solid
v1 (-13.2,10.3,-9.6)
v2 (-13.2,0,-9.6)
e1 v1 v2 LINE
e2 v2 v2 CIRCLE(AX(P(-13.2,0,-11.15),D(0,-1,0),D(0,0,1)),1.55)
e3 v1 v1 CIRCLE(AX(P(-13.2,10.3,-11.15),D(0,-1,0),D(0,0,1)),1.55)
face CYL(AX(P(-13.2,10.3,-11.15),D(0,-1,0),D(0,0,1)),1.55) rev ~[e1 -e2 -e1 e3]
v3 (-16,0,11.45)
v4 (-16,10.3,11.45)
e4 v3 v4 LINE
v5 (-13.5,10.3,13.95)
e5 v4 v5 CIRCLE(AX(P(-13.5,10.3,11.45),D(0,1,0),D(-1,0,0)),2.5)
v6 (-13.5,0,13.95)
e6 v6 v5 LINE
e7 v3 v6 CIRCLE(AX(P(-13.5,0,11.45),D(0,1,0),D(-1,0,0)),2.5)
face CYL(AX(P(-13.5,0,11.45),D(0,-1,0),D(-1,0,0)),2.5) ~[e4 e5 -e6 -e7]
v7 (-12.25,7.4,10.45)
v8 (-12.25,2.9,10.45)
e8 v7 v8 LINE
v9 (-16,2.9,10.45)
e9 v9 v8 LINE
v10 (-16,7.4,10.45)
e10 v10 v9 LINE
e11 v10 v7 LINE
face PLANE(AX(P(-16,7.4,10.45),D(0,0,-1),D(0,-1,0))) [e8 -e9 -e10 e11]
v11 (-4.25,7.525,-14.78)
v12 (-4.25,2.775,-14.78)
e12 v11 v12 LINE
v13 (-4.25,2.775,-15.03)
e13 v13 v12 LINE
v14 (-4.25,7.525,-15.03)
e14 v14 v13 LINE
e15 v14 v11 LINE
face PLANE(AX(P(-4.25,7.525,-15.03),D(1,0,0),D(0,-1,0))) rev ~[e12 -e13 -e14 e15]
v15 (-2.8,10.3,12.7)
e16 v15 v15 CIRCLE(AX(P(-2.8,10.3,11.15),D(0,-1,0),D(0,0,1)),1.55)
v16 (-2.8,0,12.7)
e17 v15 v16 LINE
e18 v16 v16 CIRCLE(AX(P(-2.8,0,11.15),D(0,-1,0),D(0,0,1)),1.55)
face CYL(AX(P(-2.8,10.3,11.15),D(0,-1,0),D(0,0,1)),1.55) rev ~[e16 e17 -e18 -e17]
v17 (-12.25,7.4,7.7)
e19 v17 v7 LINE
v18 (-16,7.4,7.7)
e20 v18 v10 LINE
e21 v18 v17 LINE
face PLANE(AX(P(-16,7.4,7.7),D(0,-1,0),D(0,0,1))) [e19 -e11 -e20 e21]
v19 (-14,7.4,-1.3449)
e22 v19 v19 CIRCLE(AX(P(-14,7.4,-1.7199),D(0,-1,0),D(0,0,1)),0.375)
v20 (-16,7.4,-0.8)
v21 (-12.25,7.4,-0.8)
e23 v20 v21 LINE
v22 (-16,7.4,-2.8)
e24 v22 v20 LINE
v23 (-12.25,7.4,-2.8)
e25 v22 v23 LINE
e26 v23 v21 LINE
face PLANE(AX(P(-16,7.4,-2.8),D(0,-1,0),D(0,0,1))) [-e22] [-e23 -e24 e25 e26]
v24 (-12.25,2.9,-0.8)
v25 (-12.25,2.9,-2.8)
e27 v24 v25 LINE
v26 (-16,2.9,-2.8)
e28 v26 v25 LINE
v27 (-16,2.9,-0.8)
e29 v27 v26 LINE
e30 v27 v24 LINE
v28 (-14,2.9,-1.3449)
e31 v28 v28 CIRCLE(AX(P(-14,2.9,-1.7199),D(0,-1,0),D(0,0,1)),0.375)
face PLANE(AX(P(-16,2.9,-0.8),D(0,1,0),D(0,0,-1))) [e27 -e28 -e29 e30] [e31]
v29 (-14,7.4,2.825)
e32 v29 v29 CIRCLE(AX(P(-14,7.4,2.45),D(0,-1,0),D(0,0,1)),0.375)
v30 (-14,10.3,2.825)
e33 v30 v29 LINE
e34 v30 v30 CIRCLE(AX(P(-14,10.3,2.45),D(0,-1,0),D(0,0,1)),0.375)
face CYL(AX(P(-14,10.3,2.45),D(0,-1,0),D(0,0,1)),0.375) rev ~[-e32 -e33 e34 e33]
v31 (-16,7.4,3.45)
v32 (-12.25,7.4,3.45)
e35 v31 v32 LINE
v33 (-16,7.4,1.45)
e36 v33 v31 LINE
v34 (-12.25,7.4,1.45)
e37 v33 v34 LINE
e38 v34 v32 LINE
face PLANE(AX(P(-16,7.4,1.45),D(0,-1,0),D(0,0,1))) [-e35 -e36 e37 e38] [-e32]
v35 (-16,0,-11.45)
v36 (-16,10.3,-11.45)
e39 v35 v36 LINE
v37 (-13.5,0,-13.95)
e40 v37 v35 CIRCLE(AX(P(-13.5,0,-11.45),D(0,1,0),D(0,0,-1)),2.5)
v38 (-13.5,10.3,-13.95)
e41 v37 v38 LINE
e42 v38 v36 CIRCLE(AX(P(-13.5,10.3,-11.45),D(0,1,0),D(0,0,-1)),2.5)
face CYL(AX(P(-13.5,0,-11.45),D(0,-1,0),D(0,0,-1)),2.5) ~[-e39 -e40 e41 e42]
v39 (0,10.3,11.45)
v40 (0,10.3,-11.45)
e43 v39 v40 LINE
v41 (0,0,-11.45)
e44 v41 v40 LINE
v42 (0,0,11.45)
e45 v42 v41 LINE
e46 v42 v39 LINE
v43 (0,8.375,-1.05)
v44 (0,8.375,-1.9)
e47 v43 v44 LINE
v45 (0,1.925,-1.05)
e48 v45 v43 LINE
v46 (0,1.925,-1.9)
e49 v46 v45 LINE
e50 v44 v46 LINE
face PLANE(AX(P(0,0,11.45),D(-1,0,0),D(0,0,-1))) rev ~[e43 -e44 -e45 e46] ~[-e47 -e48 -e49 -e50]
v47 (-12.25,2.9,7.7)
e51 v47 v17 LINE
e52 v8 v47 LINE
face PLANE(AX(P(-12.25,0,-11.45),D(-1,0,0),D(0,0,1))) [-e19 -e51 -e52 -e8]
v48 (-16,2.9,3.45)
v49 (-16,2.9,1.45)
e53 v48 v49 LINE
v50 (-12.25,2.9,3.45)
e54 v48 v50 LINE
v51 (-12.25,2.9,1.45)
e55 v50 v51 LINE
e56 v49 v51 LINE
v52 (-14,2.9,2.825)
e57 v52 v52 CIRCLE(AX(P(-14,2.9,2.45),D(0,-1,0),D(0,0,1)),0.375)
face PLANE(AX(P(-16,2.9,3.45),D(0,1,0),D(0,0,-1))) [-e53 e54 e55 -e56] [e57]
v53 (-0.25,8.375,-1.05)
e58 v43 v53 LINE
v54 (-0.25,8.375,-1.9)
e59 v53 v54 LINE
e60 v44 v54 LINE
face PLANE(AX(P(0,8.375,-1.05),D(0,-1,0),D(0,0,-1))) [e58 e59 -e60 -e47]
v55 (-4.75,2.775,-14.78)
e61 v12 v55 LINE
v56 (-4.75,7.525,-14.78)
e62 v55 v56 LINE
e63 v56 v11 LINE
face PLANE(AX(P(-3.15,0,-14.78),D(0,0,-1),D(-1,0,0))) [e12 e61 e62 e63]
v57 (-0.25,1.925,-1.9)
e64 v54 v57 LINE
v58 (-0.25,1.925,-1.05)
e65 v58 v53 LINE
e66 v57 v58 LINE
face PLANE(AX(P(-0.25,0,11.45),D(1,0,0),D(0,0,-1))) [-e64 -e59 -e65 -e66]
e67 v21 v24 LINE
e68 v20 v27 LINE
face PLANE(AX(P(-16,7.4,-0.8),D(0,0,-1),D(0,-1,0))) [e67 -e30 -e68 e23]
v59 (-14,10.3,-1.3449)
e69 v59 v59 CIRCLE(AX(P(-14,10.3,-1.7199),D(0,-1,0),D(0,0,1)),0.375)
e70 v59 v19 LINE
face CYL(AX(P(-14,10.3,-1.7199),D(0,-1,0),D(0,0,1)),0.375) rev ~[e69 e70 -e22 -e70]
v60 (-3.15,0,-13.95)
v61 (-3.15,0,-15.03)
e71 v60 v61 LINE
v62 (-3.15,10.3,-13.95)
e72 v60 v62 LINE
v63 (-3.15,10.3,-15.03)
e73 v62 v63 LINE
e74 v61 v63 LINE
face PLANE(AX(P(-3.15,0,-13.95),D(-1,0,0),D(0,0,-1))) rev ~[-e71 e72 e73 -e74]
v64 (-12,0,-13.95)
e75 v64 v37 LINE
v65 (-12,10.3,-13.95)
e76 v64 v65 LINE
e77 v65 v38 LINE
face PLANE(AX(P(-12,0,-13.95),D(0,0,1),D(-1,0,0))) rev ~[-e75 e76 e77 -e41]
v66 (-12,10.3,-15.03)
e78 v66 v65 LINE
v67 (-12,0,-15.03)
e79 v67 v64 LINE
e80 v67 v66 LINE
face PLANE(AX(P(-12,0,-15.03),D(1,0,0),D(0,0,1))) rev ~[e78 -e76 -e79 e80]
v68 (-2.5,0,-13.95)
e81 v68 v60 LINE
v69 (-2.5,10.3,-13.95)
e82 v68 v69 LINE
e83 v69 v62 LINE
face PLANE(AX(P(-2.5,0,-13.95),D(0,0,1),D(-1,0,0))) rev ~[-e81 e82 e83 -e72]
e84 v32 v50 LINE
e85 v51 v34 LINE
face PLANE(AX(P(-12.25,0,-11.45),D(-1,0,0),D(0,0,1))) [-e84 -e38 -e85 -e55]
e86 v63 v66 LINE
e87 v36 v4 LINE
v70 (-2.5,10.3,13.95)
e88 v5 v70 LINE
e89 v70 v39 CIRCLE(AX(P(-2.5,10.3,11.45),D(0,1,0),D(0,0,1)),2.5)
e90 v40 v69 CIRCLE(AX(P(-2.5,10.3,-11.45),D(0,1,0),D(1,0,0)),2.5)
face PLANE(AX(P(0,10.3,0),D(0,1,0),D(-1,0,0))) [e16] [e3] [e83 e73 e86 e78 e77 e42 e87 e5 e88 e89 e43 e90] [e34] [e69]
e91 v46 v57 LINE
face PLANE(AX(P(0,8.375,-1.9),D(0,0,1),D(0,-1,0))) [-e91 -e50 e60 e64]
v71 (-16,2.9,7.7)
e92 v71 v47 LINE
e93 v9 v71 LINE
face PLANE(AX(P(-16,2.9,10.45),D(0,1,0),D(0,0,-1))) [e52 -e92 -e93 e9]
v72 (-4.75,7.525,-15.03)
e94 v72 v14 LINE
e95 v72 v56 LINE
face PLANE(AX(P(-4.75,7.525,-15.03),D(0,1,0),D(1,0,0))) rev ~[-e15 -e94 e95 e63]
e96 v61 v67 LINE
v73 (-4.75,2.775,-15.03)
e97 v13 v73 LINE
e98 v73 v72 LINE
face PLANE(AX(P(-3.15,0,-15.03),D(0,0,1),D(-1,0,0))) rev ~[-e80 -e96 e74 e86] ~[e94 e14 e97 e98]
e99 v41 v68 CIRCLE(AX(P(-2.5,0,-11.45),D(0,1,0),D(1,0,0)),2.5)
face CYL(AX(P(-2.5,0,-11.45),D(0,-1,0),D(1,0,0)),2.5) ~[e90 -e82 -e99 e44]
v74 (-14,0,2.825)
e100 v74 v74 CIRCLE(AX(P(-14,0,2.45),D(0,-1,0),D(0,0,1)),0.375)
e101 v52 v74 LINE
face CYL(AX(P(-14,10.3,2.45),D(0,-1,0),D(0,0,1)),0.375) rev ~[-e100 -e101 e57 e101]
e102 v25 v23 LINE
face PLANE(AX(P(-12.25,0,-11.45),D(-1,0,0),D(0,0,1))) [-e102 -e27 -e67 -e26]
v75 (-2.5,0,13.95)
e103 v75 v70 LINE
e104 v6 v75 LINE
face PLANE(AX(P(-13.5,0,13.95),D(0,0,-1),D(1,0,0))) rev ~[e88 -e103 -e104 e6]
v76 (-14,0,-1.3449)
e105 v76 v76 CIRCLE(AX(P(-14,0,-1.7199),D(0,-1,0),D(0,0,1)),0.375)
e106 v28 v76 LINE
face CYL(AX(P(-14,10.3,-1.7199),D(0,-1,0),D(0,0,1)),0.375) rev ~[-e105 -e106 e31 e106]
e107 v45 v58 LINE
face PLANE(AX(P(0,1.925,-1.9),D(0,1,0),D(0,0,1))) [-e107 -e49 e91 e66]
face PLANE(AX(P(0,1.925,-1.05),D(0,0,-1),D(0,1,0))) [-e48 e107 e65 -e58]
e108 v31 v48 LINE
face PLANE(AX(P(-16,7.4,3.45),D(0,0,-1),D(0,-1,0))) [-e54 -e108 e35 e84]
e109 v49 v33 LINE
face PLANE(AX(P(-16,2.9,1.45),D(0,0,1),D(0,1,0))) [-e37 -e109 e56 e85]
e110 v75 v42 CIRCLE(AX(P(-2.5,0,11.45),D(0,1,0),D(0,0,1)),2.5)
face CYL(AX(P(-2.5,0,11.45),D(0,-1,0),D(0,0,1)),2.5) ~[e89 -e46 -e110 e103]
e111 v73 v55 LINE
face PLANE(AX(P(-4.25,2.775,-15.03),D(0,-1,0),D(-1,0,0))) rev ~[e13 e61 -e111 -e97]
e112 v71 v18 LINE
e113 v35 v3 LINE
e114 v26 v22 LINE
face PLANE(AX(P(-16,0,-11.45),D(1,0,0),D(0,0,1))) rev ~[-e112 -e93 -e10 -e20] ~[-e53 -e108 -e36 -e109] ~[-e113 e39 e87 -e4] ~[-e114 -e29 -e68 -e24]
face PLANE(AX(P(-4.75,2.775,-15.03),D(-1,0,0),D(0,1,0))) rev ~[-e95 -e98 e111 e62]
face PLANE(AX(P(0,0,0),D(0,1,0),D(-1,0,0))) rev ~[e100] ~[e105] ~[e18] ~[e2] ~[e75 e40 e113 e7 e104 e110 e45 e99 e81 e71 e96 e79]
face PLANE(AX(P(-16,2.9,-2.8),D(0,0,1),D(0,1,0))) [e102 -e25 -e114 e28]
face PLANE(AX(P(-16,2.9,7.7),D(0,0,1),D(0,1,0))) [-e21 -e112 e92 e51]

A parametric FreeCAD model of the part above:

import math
import FreeCAD as App
import Part
import Sketcher
from FreeCAD import Vector
Q = App.Units.Quantity


def add_polygon(sketch, points):
    """Adds a closed chain of lines whose ends are joined by coincident constraints."""
    first, n = sketch.GeometryCount, len(points)
    for a, b in zip(points, points[1:] + points[:1]):
        sketch.addGeometry(Part.LineSegment(App.Vector(*a, 0), App.Vector(*b, 0)), False)
    for i in range(n):
        sketch.addConstraint(Sketcher.Constraint("Coincident", first + i, 2, first + (i + 1) % n, 1))

doc = App.newDocument("Part")
body = doc.addObject("PartDesign::Body", "Body")

# Sketch on XZ plane
sketch1 = body.newObject("Sketcher::SketchObject", "Sketch")
sketch1.AttachmentSupport = (doc.getObject("XZ_Plane"), [""])
sketch1.MapMode = "FlatFace"
sketch1.addGeometry(Part.ArcOfCircle(Part.Circle(Vector(-13.5, 11.4, 0), Vector(0, 0, 1), 2.5), math.radians(90), math.radians(180)), False)
sketch1.addGeometry(Part.LineSegment(Vector(-13.5, 13.9, 0), Vector(-2.5, 13.9, 0)), False)
sketch1.addGeometry(Part.ArcOfCircle(Part.Circle(Vector(-2.5, 11.4, 0), Vector(0, 0, 1), 2.5), math.radians(0), math.radians(90)), False)
sketch1.addGeometry(Part.LineSegment(Vector(0, 11.4, 0), Vector(0, -11.4, 0)), False)
sketch1.addGeometry(Part.ArcOfCircle(Part.Circle(Vector(-2.5, -11.4, 0), Vector(0, 0, 1), 2.5), math.radians(-90), math.radians(0)), False)
sketch1.addGeometry(Part.LineSegment(Vector(-2.5, -13.9, 0), Vector(-3.1, -13.9, 0)), False)
sketch1.addGeometry(Part.LineSegment(Vector(-3.1, -13.9, 0), Vector(-3.1, -15, 0)), False)
sketch1.addGeometry(Part.LineSegment(Vector(-3.1, -15, 0), Vector(-12, -15, 0)), False)
sketch1.addGeometry(Part.LineSegment(Vector(-12, -15, 0), Vector(-12, -13.9, 0)), False)
sketch1.addGeometry(Part.LineSegment(Vector(-12, -13.9, 0), Vector(-13.5, -13.9, 0)), False)
sketch1.addGeometry(Part.ArcOfCircle(Part.Circle(Vector(-13.5, -11.4, 0), Vector(0, 0, 1), 2.5), math.radians(180), math.radians(270)), False)
sketch1.addGeometry(Part.LineSegment(Vector(-16, -11.4, 0), Vector(-16, 11.4, 0)), False)
sketch1.addConstraint(Sketcher.Constraint("Tangent", 0, 1, 1, 1))
sketch1.addConstraint(Sketcher.Constraint("Tangent", 1, 2, 2, 2))
sketch1.addConstraint(Sketcher.Constraint("Tangent", 2, 1, 3, 1))
sketch1.addConstraint(Sketcher.Constraint("Tangent", 3, 2, 4, 2))
sketch1.addConstraint(Sketcher.Constraint("Tangent", 4, 1, 5, 1))
sketch1.addConstraint(Sketcher.Constraint("Coincident", 5, 2, 6, 1))
sketch1.addConstraint(Sketcher.Constraint("Coincident", 6, 2, 7, 1))
sketch1.addConstraint(Sketcher.Constraint("Coincident", 7, 2, 8, 1))
sketch1.addConstraint(Sketcher.Constraint("Coincident", 8, 2, 9, 1))
sketch1.addConstraint(Sketcher.Constraint("Tangent", 9, 2, 10, 2))
sketch1.addConstraint(Sketcher.Constraint("Tangent", 10, 1, 11, 1))
sketch1.addConstraint(Sketcher.Constraint("Tangent", 11, 2, 0, 2))
sketch1.addConstraint(Sketcher.Constraint("Horizontal", 1))
sketch1.addConstraint(Sketcher.Constraint("Vertical", 3))
sketch1.addConstraint(Sketcher.Constraint("Horizontal", 5))
sketch1.addConstraint(Sketcher.Constraint("Vertical", 6))
sketch1.addConstraint(Sketcher.Constraint("Horizontal", 7))
sketch1.addConstraint(Sketcher.Constraint("Vertical", 8))
sketch1.addConstraint(Sketcher.Constraint("Horizontal", 9))
sketch1.addConstraint(Sketcher.Constraint("Vertical", 11))
sketch1.addConstraint(Sketcher.Constraint("Equal", 0, 2))
sketch1.addConstraint(Sketcher.Constraint("Equal", 2, 4))
sketch1.addConstraint(Sketcher.Constraint("Equal", 4, 10))
sketch1.addConstraint(Sketcher.Constraint("Symmetric", 2, 1, 3, 2, -1, 1))
sketch1.addConstraint(Sketcher.Constraint("Horizontal", 4, 3, 10, 3))
sketch1.addConstraint(Sketcher.Constraint("Radius", 0, Q("2.5 mm")))
sketch1.addConstraint(Sketcher.Constraint("DistanceX", 10, 1, -1, 1, Q("16 mm")))
sketch1.addConstraint(Sketcher.Constraint("DistanceX", 10, 1, 8, 2, Q("4 mm")))
sketch1.addConstraint(Sketcher.Constraint("DistanceX", 7, 2, 7, 1, Q("8.85 mm")))
sketch1.addConstraint(Sketcher.Constraint("DistanceY", 6, 2, 6, 1, Q("1.08 mm")))
sketch1.addConstraint(Sketcher.Constraint("DistanceY", 3, 2, 3, 1, Q("22.9 mm")))
pad1 = body.newObject("PartDesign::Pad", "Pad")
pad1.Profile = sketch1
pad1.Length = 10.3
pad1.Reversed = True

# Sketch on XZ plane
sketch2 = body.newObject("Sketcher::SketchObject", "Sketch001")
sketch2.AttachmentSupport = (doc.getObject("XZ_Plane"), [""])
sketch2.MapMode = "FlatFace"
sketch2.AttachmentOffset = App.Placement(Vector(0, 0, -10.3), App.Rotation())
sketch2.addGeometry(Part.Circle(Vector(-13.2, -11.2, 0), Vector(0, 0, 1), 1.6), False)
sketch2.addGeometry(Part.Circle(Vector(-2.8, 11.2, 0), Vector(0, 0, 1), 1.6), False)
sketch2.addConstraint(Sketcher.Constraint("Equal", 0, 1))
sketch2.addConstraint(Sketcher.Constraint("Diameter", 0, Q("3.1 mm")))
sketch2.addConstraint(Sketcher.Constraint("DistanceX", 0, 3, -1, 1, Q("13.2 mm")))
sketch2.addConstraint(Sketcher.Constraint("DistanceX", 1, 3, -1, 1, Q("2.8 mm")))
sketch2.addConstraint(Sketcher.Constraint("DistanceY", 0, 3, 1, 3, Q("22.3 mm")))
sketch2.addConstraint(Sketcher.Constraint("DistanceY", 0, 3, -1, 1, Q("11.15 mm")))
doc.recompute()
hole = body.newObject("PartDesign::Hole", "Hole")
hole.Profile = sketch2
hole.ThreadType = "None"
hole.Diameter = 3.1
hole.DepthType = "ThroughAll"
hole.Reversed = True

# Sketch on YZ plane
sketch3 = body.newObject("Sketcher::SketchObject", "Sketch002")
sketch3.AttachmentSupport = (doc.getObject("YZ_Plane"), [""])
sketch3.MapMode = "FlatFace"
sketch3.AttachmentOffset = App.Placement(Vector(0, 0, -16), App.Rotation())
add_polygon(sketch3, [(2.9, -2.8), (2.9, -0.8), (7.4, -0.8), (7.4, -2.8)])  # lines 0-3
add_polygon(sketch3, [(2.9, 1.4), (2.9, 3.5), (7.4, 3.5), (7.4, 1.4)])  # lines 4-7
add_polygon(sketch3, [(2.9, 7.7), (2.9, 10.4), (7.4, 10.4), (7.4, 7.7)])  # lines 8-11
sketch3.addConstraint(Sketcher.Constraint("Vertical", 0))
sketch3.addConstraint(Sketcher.Constraint("Horizontal", 1))
sketch3.addConstraint(Sketcher.Constraint("Vertical", 2))
sketch3.addConstraint(Sketcher.Constraint("Horizontal", 3))
sketch3.addConstraint(Sketcher.Constraint("Vertical", 4))
sketch3.addConstraint(Sketcher.Constraint("Horizontal", 5))
sketch3.addConstraint(Sketcher.Constraint("Vertical", 6))
sketch3.addConstraint(Sketcher.Constraint("Horizontal", 7))
sketch3.addConstraint(Sketcher.Constraint("Vertical", 8))
sketch3.addConstraint(Sketcher.Constraint("Horizontal", 9))
sketch3.addConstraint(Sketcher.Constraint("Vertical", 10))
sketch3.addConstraint(Sketcher.Constraint("Horizontal", 11))
sketch3.addConstraint(Sketcher.Constraint("Vertical", 3, 2, 4, 2))
sketch3.addConstraint(Sketcher.Constraint("Vertical", 2, 2, 5, 2))
sketch3.addConstraint(Sketcher.Constraint("Vertical", 7, 2, 8, 2))
sketch3.addConstraint(Sketcher.Constraint("Vertical", 6, 2, 9, 2))
sketch3.addConstraint(Sketcher.Constraint("Equal", 2, 4))
sketch3.addConstraint(Sketcher.Constraint("DistanceY", 0, 1, 0, 2, Q("2 mm")))
sketch3.addConstraint(Sketcher.Constraint("DistanceX", 1, 1, 1, 2, Q("4.5 mm")))
sketch3.addConstraint(Sketcher.Constraint("DistanceY", 8, 1, 8, 2, Q("2.75 mm")))
sketch3.addConstraint(Sketcher.Constraint("DistanceY", 0, 2, 4, 2, Q("4.25 mm")))
sketch3.addConstraint(Sketcher.Constraint("DistanceY", 5, 2, 10, 2, Q("4.25 mm")))
sketch3.addConstraint(Sketcher.Constraint("DistanceX", -1, 1, 0, 2, Q("2.9 mm")))
sketch3.addConstraint(Sketcher.Constraint("DistanceY", 0, 2, -1, 1, Q("0.8 mm")))
pocket1 = body.newObject("PartDesign::Pocket", "Pocket")
pocket1.Profile = sketch3
pocket1.Length = 3.75
pocket1.Reversed = True

# Sketch on XZ plane
sketch4 = body.newObject("Sketcher::SketchObject", "Sketch003")
sketch4.AttachmentSupport = (doc.getObject("XZ_Plane"), [""])
sketch4.MapMode = "FlatFace"
sketch4.AttachmentOffset = App.Placement(Vector(0, 0, -10.3), App.Rotation())
sketch4.addGeometry(Part.Circle(Vector(-14, 2.45, 0), Vector(0, 0, 1), 0.38), False)
sketch4.addGeometry(Part.Circle(Vector(-14, -1.72, 0), Vector(0, 0, 1), 0.38), False)
sketch4.addConstraint(Sketcher.Constraint("Equal", 0, 1))
sketch4.addConstraint(Sketcher.Constraint("Vertical", 0, 3, 1, 3))
sketch4.addConstraint(Sketcher.Constraint("Diameter", 0, Q("0.75 mm")))
sketch4.addConstraint(Sketcher.Constraint("DistanceX", 0, 3, -1, 1, Q("14 mm")))
sketch4.addConstraint(Sketcher.Constraint("DistanceY", -1, 1, 0, 3, Q("2.45 mm")))
sketch4.addConstraint(Sketcher.Constraint("DistanceY", 1, 3, -1, 1, Q("1.72 mm")))
doc.recompute()
hole2 = body.newObject("PartDesign::Hole", "Hole001")
hole2.Profile = sketch4
hole2.ThreadType = "None"
hole2.Diameter = 0.75
hole2.DepthType = "ThroughAll"
hole2.Reversed = True

# Sketch on XY plane
sketch5 = body.newObject("Sketcher::SketchObject", "Sketch004")
sketch5.AttachmentSupport = (doc.getObject("XY_Plane"), [""])
sketch5.MapMode = "FlatFace"
sketch5.AttachmentOffset = App.Placement(Vector(0, 0, -15.03), App.Rotation())
add_polygon(sketch5, [(-4.8, 2.8), (-4.8, 7.5), (-4.2, 7.5), (-4.2, 2.8)])  # lines 0-3
sketch5.addConstraint(Sketcher.Constraint("Vertical", 0))
sketch5.addConstraint(Sketcher.Constraint("Horizontal", 1))
sketch5.addConstraint(Sketcher.Constraint("Vertical", 2))
sketch5.addConstraint(Sketcher.Constraint("Horizontal", 3))
sketch5.addConstraint(Sketcher.Constraint("DistanceX", 1, 1, 1, 2, Q("0.5 mm")))
sketch5.addConstraint(Sketcher.Constraint("DistanceY", 0, 1, 0, 2, Q("4.75 mm")))
sketch5.addConstraint(Sketcher.Constraint("DistanceX", 0, 2, -1, 1, Q("4.75 mm")))
sketch5.addConstraint(Sketcher.Constraint("DistanceY", -1, 1, 0, 2, Q("7.525 mm")))
pocket2 = body.newObject("PartDesign::Pocket", "Pocket001")
pocket2.Profile = sketch5
pocket2.Length = 0.25
pocket2.Reversed = True

# Sketch on YZ plane
sketch6 = body.newObject("Sketcher::SketchObject", "Sketch005")
sketch6.AttachmentSupport = (doc.getObject("YZ_Plane"), [""])
sketch6.MapMode = "FlatFace"
add_polygon(sketch6, [(8.4, -1.9), (8.4, -1.1), (1.9, -1.1), (1.9, -1.9)])  # lines 0-3
sketch6.addConstraint(Sketcher.Constraint("Vertical", 0))
sketch6.addConstraint(Sketcher.Constraint("Horizontal", 1))
sketch6.addConstraint(Sketcher.Constraint("Vertical", 2))
sketch6.addConstraint(Sketcher.Constraint("Horizontal", 3))
sketch6.addConstraint(Sketcher.Constraint("DistanceX", 1, 2, 1, 1, Q("6.45 mm")))
sketch6.addConstraint(Sketcher.Constraint("DistanceY", 0, 1, 0, 2, Q("0.85 mm")))
sketch6.addConstraint(Sketcher.Constraint("DistanceY", 2, 2, -1, 1, Q("1.9 mm")))
sketch6.addConstraint(Sketcher.Constraint("DistanceX", -1, 1, 0, 2, Q("8.375 mm")))
pocket3 = body.newObject("PartDesign::Pocket", "Pocket002")
pocket3.Profile = sketch6
pocket3.Length = 0.25

doc.recompute()
